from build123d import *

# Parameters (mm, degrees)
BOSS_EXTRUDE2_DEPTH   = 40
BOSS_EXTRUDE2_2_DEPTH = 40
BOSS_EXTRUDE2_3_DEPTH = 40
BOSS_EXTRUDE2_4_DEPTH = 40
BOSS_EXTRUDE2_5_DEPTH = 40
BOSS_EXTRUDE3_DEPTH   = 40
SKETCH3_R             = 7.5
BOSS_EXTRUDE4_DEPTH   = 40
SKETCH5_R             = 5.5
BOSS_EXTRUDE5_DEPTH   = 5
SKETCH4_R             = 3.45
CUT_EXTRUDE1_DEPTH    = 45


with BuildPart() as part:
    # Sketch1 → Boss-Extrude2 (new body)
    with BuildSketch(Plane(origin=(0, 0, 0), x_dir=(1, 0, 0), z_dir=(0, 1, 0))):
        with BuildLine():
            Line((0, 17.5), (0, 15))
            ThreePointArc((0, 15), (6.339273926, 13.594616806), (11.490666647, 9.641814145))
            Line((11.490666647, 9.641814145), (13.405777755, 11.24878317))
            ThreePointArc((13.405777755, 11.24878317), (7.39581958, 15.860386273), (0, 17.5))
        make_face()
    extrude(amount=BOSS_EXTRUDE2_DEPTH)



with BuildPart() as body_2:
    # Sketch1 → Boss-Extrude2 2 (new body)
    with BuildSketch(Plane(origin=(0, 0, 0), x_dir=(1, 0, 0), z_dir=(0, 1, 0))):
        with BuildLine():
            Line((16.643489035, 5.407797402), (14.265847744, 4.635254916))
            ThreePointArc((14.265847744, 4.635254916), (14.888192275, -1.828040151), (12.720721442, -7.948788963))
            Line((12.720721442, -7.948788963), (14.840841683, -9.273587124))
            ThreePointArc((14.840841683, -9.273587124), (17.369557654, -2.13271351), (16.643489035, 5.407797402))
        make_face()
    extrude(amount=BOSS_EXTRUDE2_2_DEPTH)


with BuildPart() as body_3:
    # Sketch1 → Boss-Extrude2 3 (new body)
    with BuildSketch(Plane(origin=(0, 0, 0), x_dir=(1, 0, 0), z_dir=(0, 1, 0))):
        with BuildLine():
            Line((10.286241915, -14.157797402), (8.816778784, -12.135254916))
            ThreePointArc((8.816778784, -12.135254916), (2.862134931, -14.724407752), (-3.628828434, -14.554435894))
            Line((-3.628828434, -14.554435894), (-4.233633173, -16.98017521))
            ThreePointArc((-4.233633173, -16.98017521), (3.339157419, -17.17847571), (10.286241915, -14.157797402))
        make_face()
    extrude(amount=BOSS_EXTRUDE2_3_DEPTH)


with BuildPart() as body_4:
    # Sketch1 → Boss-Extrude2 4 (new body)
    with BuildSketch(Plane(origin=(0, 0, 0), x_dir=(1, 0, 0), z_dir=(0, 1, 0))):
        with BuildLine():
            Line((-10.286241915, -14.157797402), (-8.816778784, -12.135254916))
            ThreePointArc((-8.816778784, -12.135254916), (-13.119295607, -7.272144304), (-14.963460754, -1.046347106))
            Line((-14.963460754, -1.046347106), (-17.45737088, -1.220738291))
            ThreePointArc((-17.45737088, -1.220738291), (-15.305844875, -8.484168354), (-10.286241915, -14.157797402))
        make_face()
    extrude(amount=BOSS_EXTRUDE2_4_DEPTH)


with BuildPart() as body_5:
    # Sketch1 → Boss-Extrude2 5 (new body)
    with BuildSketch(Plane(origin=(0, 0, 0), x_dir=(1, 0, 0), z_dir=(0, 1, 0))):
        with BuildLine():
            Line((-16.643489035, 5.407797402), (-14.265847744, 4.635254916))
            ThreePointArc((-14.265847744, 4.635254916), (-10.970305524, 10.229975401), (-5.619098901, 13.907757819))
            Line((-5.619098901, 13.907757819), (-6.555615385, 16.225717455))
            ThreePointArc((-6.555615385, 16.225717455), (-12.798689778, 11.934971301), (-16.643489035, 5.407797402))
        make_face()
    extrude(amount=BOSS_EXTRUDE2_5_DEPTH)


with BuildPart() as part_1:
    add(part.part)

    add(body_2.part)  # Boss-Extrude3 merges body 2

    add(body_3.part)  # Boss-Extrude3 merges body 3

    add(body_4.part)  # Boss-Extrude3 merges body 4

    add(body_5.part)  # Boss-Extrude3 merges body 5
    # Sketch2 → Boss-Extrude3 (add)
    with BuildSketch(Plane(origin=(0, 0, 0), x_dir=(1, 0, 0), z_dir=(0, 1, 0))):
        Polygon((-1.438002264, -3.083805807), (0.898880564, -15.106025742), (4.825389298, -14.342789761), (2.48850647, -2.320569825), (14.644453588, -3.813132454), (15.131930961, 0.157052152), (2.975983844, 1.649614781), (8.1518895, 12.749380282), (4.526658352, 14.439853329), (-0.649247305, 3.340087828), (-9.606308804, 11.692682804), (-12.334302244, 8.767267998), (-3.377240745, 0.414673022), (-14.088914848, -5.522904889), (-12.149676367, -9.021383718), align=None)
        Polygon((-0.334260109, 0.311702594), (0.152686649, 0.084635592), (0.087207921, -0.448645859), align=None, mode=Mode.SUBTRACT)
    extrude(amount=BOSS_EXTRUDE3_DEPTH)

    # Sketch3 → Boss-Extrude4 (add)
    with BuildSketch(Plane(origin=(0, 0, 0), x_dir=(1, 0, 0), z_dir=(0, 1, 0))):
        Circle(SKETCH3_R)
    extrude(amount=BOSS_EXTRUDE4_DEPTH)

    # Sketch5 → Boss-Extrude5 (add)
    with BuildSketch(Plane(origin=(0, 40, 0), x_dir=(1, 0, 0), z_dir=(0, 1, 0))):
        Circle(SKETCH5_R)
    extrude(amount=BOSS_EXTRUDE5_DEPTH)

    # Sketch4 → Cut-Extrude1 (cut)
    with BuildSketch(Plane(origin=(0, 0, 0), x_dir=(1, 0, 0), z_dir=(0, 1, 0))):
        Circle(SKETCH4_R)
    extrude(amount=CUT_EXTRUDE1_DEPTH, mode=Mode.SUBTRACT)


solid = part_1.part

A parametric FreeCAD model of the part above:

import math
import FreeCAD as App
import Part
import Sketcher
from FreeCAD import Vector
Q = App.Units.Quantity

doc = App.newDocument("Part")
body = doc.addObject("PartDesign::Body", "Body")

# Sketch on XZ plane
sketch1 = body.newObject("Sketcher::SketchObject", "Sketch")
sketch1.AttachmentSupport = (doc.getObject("XZ_Plane"), [""])
sketch1.MapMode = "FlatFace"
sketch1.addGeometry(Part.LineSegment(Vector(0, -17.5, 0), Vector(0, -15, 0)), False)
sketch1.addGeometry(Part.ArcOfCircle(Part.Circle(Vector(0, 0, 0), Vector(0, 0, 1), 15), math.radians(-90), math.radians(-40)), False)
sketch1.addGeometry(Part.LineSegment(Vector(11.5, -9.6, 0), Vector(13.4, -11.2, 0)), False)
sketch1.addGeometry(Part.ArcOfCircle(Part.Circle(Vector(0, 0, 0), Vector(0, 0, 1), 17.5), math.radians(-90), math.radians(-40)), False)
sketch1.addConstraint(Sketcher.Constraint("Coincident", 0, 2, 1, 1))
sketch1.addConstraint(Sketcher.Constraint("Coincident", 1, 2, 2, 1))
sketch1.addConstraint(Sketcher.Constraint("Coincident", 2, 2, 3, 2))
sketch1.addConstraint(Sketcher.Constraint("Coincident", 3, 1, 0, 1))
sketch1.addConstraint(Sketcher.Constraint("Vertical", 0))
sketch1.addConstraint(Sketcher.Constraint("Coincident", 1, 3, -1, 1))
sketch1.addConstraint(Sketcher.Constraint("Coincident", 3, 3, -1, 1))
sketch1.addConstraint(Sketcher.Constraint("PointOnObject", 0, 2, -2))
sketch1.addConstraint(Sketcher.Constraint("Radius", 1, 15.0))
sketch1.addConstraint(Sketcher.Constraint("Radius", 3, 17.5))
sketch1.addConstraint(Sketcher.Constraint("Angle", 2, Q("-40 deg")))
sketch1.addConstraint(Sketcher.Constraint("DistanceX", -1, 1, 1, 2, 11.490667))
pad1 = body.newObject("PartDesign::Pad", "Pad")
pad1.Profile = sketch1
pad1.Length = 40
pad1.Reversed = True
body2 = doc.addObject("PartDesign::Body", "Body001")

# Sketch on XZ plane
sketch2 = body2.newObject("Sketcher::SketchObject", "Sketch001")
sketch2.AttachmentSupport = (doc.getObject("XZ_Plane001"), [""])
sketch2.MapMode = "FlatFace"
sketch2.addGeometry(Part.LineSegment(Vector(16.6, -5.4, 0), Vector(14.3, -4.6, 0)), False)
sketch2.addGeometry(Part.ArcOfCircle(Part.Circle(Vector(0, 0, 0), Vector(0, 0, 1), 15), math.radians(-18), math.radians(32)), False)
sketch2.addGeometry(Part.LineSegment(Vector(12.7, 7.9, 0), Vector(14.8, 9.3, 0)), False)
sketch2.addGeometry(Part.ArcOfCircle(Part.Circle(Vector(0, 0, 0), Vector(0, 0, 1), 17.5), math.radians(-18), math.radians(32)), False)
sketch2.addConstraint(Sketcher.Constraint("Coincident", 0, 2, 1, 1))
sketch2.addConstraint(Sketcher.Constraint("Coincident", 1, 2, 2, 1))
sketch2.addConstraint(Sketcher.Constraint("Coincident", 2, 2, 3, 2))
sketch2.addConstraint(Sketcher.Constraint("Coincident", 3, 1, 0, 1))
sketch2.addConstraint(Sketcher.Constraint("Coincident", 1, 3, -1, 1))
sketch2.addConstraint(Sketcher.Constraint("Coincident", 3, 3, -1, 1))
sketch2.addConstraint(Sketcher.Constraint("Radius", 1, 15.0))
sketch2.addConstraint(Sketcher.Constraint("Radius", 3, 17.5))
sketch2.addConstraint(Sketcher.Constraint("Angle", 0, Q("162 deg")))
sketch2.addConstraint(Sketcher.Constraint("Angle", 2, Q("32 deg")))
sketch2.addConstraint(Sketcher.Constraint("DistanceX", -1, 1, 1, 2, 12.720721))
sketch2.addConstraint(Sketcher.Constraint("DistanceX", -1, 1, 3, 1, 16.643489))
pad2 = body2.newObject("PartDesign::Pad", "Pad001")
pad2.Profile = sketch2
pad2.Length = 40
pad2.Reversed = True
body3 = doc.addObject("PartDesign::Body", "Body002")

# Sketch on XZ plane
sketch3 = body3.newObject("Sketcher::SketchObject", "Sketch002")
sketch3.AttachmentSupport = (doc.getObject("XZ_Plane002"), [""])
sketch3.MapMode = "FlatFace"
sketch3.addGeometry(Part.LineSegment(Vector(10.3, 14.2, 0), Vector(8.8, 12.1, 0)), False)
sketch3.addGeometry(Part.ArcOfCircle(Part.Circle(Vector(0, 0, 0), Vector(0, 0, 1), 15), math.radians(54), math.radians(104)), False)
sketch3.addGeometry(Part.LineSegment(Vector(-3.6, 14.6, 0), Vector(-4.2, 17, 0)), False)
sketch3.addGeometry(Part.ArcOfCircle(Part.Circle(Vector(0, 0, 0), Vector(0, 0, 1), 17.5), math.radians(54), math.radians(104)), False)
sketch3.addConstraint(Sketcher.Constraint("Coincident", 0, 2, 1, 1))
sketch3.addConstraint(Sketcher.Constraint("Coincident", 1, 2, 2, 1))
sketch3.addConstraint(Sketcher.Constraint("Coincident", 2, 2, 3, 2))
sketch3.addConstraint(Sketcher.Constraint("Coincident", 3, 1, 0, 1))
sketch3.addConstraint(Sketcher.Constraint("Coincident", 1, 3, -1, 1))
sketch3.addConstraint(Sketcher.Constraint("Coincident", 3, 3, -1, 1))
sketch3.addConstraint(Sketcher.Constraint("Radius", 1, 15.0))
sketch3.addConstraint(Sketcher.Constraint("Radius", 3, 17.5))
sketch3.addConstraint(Sketcher.Constraint("Angle", 0, Q("-126 deg")))
sketch3.addConstraint(Sketcher.Constraint("Angle", 2, Q("104 deg")))
sketch3.addConstraint(Sketcher.Constraint("DistanceX", -1, 1, 0, 2, 8.816779))
sketch3.addConstraint(Sketcher.Constraint("DistanceX", 1, 2, -1, 1, 3.628828))
pad3 = body3.newObject("PartDesign::Pad", "Pad002")
pad3.Profile = sketch3
pad3.Length = 40
pad3.Reversed = True
body4 = doc.addObject("PartDesign::Body", "Body003")

# Sketch on XZ plane
sketch4 = body4.newObject("Sketcher::SketchObject", "Sketch003")
sketch4.AttachmentSupport = (doc.getObject("XZ_Plane003"), [""])
sketch4.MapMode = "FlatFace"
sketch4.addGeometry(Part.LineSegment(Vector(-10.3, 14.2, 0), Vector(-8.8, 12.1, 0)), False)
sketch4.addGeometry(Part.ArcOfCircle(Part.Circle(Vector(0, 0, 0), Vector(0, 0, 1), 15), math.radians(126), math.radians(176)), False)
sketch4.addGeometry(Part.LineSegment(Vector(-15, 1, 0), Vector(-17.5, 1.2, 0)), False)
sketch4.addGeometry(Part.ArcOfCircle(Part.Circle(Vector(0, 0, 0), Vector(0, 0, 1), 17.5), math.radians(126), math.radians(176)), False)
sketch4.addConstraint(Sketcher.Constraint("Coincident", 0, 2, 1, 1))
sketch4.addConstraint(Sketcher.Constraint("Coincident", 1, 2, 2, 1))
sketch4.addConstraint(Sketcher.Constraint("Coincident", 2, 2, 3, 2))
sketch4.addConstraint(Sketcher.Constraint("Coincident", 3, 1, 0, 1))
sketch4.addConstraint(Sketcher.Constraint("Coincident", 1, 3, -1, 1))
sketch4.addConstraint(Sketcher.Constraint("Coincident", 3, 3, -1, 1))
sketch4.addConstraint(Sketcher.Constraint("Radius", 1, 15.0))
sketch4.addConstraint(Sketcher.Constraint("Radius", 3, 17.5))
sketch4.addConstraint(Sketcher.Constraint("Angle", 0, Q("-54 deg")))
sketch4.addConstraint(Sketcher.Constraint("Angle", 2, Q("176 deg")))
sketch4.addConstraint(Sketcher.Constraint("DistanceX", 0, 2, -1, 1, 8.816779))
sketch4.addConstraint(Sketcher.Constraint("DistanceX", 1, 2, -1, 1, 14.963461))
pad4 = body4.newObject("PartDesign::Pad", "Pad003")
pad4.Profile = sketch4
pad4.Length = 40
pad4.Reversed = True
body5 = doc.addObject("PartDesign::Body", "Body004")

# Sketch on XZ plane
sketch5 = body5.newObject("Sketcher::SketchObject", "Sketch004")
sketch5.AttachmentSupport = (doc.getObject("XZ_Plane004"), [""])
sketch5.MapMode = "FlatFace"
sketch5.addGeometry(Part.LineSegment(Vector(-16.6, -5.4, 0), Vector(-14.3, -4.6, 0)), False)
sketch5.addGeometry(Part.ArcOfCircle(Part.Circle(Vector(0, 0, 0), Vector(0, 0, 1), 15), math.radians(-162), math.radians(-112)), False)
sketch5.addGeometry(Part.LineSegment(Vector(-5.6, -13.9, 0), Vector(-6.6, -16.2, 0)), False)
sketch5.addGeometry(Part.ArcOfCircle(Part.Circle(Vector(0, 0, 0), Vector(0, 0, 1), 17.5), math.radians(-162), math.radians(-112)), False)
sketch5.addConstraint(Sketcher.Constraint("Coincident", 0, 2, 1, 1))
sketch5.addConstraint(Sketcher.Constraint("Coincident", 1, 2, 2, 1))
sketch5.addConstraint(Sketcher.Constraint("Coincident", 2, 2, 3, 2))
sketch5.addConstraint(Sketcher.Constraint("Coincident", 3, 1, 0, 1))
sketch5.addConstraint(Sketcher.Constraint("Coincident", 1, 3, -1, 1))
sketch5.addConstraint(Sketcher.Constraint("Coincident", 3, 3, -1, 1))
sketch5.addConstraint(Sketcher.Constraint("Radius", 1, 15.0))
sketch5.addConstraint(Sketcher.Constraint("Radius", 3, 17.5))
sketch5.addConstraint(Sketcher.Constraint("Angle", 0, Q("18 deg")))
sketch5.addConstraint(Sketcher.Constraint("Angle", 2, Q("-112 deg")))
sketch5.addConstraint(Sketcher.Constraint("DistanceX", 1, 2, -1, 1, 5.619099))
sketch5.addConstraint(Sketcher.Constraint("DistanceX", 3, 1, -1, 1, 16.643489))
pad5 = body5.newObject("PartDesign::Pad", "Pad004")
pad5.Profile = sketch5
pad5.Length = 40
pad5.Reversed = True
body.AllowCompound = True
doc.recompute()

boolean = body.newObject("PartDesign::Boolean", "Boolean")
boolean.Type = "Fuse"
boolean.addObjects([body2])
doc.recompute()

boolean2 = body.newObject("PartDesign::Boolean", "Boolean001")
boolean2.Type = "Fuse"
boolean2.addObjects([body3])
doc.recompute()

boolean3 = body.newObject("PartDesign::Boolean", "Boolean002")
boolean3.Type = "Fuse"
boolean3.addObjects([body4])
doc.recompute()

boolean4 = body.newObject("PartDesign::Boolean", "Boolean003")
boolean4.Type = "Fuse"
boolean4.addObjects([body5])

# Sketch on XZ plane
sketch6 = body.newObject("Sketcher::SketchObject", "Sketch005")
sketch6.AttachmentSupport = (doc.getObject("XZ_Plane"), [""])
sketch6.MapMode = "FlatFace"
sketch6.addGeometry(Part.LineSegment(Vector(-1.4, 3.1, 0), Vector(0.9, 15.1, 0)), False)
sketch6.addGeometry(Part.LineSegment(Vector(0.9, 15.1, 0), Vector(4.8, 14.3, 0)), False)
sketch6.addGeometry(Part.LineSegment(Vector(4.8, 14.3, 0), Vector(2.5, 2.3, 0)), False)
sketch6.addGeometry(Part.LineSegment(Vector(2.5, 2.3, 0), Vector(14.6, 3.8, 0)), False)
sketch6.addGeometry(Part.LineSegment(Vector(14.6, 3.8, 0), Vector(15.1, -0.2, 0)), False)
sketch6.addGeometry(Part.LineSegment(Vector(15.1, -0.2, 0), Vector(3, -1.6, 0)), False)
sketch6.addGeometry(Part.LineSegment(Vector(3, -1.6, 0), Vector(8.2, -12.7, 0)), False)
sketch6.addGeometry(Part.LineSegment(Vector(8.2, -12.7, 0), Vector(4.5, -14.4, 0)), False)
sketch6.addGeometry(Part.LineSegment(Vector(4.5, -14.4, 0), Vector(-0.6, -3.3, 0)), False)
sketch6.addGeometry(Part.LineSegment(Vector(-0.6, -3.3, 0), Vector(-9.6, -11.7, 0)), False)
sketch6.addGeometry(Part.LineSegment(Vector(-9.6, -11.7, 0), Vector(-12.3, -8.8, 0)), False)
sketch6.addGeometry(Part.LineSegment(Vector(-12.3, -8.8, 0), Vector(-3.4, -0.4, 0)), False)
sketch6.addGeometry(Part.LineSegment(Vector(-3.4, -0.4, 0), Vector(-14.1, 5.5, 0)), False)
sketch6.addGeometry(Part.LineSegment(Vector(-14.1, 5.5, 0), Vector(-12.1, 9, 0)), False)
sketch6.addGeometry(Part.LineSegment(Vector(-12.1, 9, 0), Vector(-1.4, 3.1, 0)), False)
sketch6.addGeometry(Part.LineSegment(Vector(0.1, 0.4, 0), Vector(-0.3, -0.3, 0)), False)
sketch6.addGeometry(Part.LineSegment(Vector(-0.3, -0.3, 0), Vector(0.2, -0.1, 0)), False)
sketch6.addGeometry(Part.LineSegment(Vector(0.2, -0.1, 0), Vector(0.1, 0.4, 0)), False)
sketch6.addConstraint(Sketcher.Constraint("Coincident", 0, 2, 1, 1))
sketch6.addConstraint(Sketcher.Constraint("Coincident", 1, 2, 2, 1))
sketch6.addConstraint(Sketcher.Constraint("Coincident", 2, 2, 3, 1))
sketch6.addConstraint(Sketcher.Constraint("Coincident", 3, 2, 4, 1))
sketch6.addConstraint(Sketcher.Constraint("Coincident", 4, 2, 5, 1))
sketch6.addConstraint(Sketcher.Constraint("Coincident", 5, 2, 6, 1))
sketch6.addConstraint(Sketcher.Constraint("Coincident", 6, 2, 7, 1))
sketch6.addConstraint(Sketcher.Constraint("Coincident", 7, 2, 8, 1))
sketch6.addConstraint(Sketcher.Constraint("Coincident", 8, 2, 9, 1))
sketch6.addConstraint(Sketcher.Constraint("Coincident", 9, 2, 10, 1))
sketch6.addConstraint(Sketcher.Constraint("Coincident", 10, 2, 11, 1))
sketch6.addConstraint(Sketcher.Constraint("Coincident", 11, 2, 12, 1))
sketch6.addConstraint(Sketcher.Constraint("Coincident", 12, 2, 13, 1))
sketch6.addConstraint(Sketcher.Constraint("Coincident", 13, 2, 14, 1))
sketch6.addConstraint(Sketcher.Constraint("Coincident", 14, 2, 0, 1))
sketch6.addConstraint(Sketcher.Constraint("Coincident", 15, 2, 16, 1))
sketch6.addConstraint(Sketcher.Constraint("Coincident", 16, 2, 17, 1))
sketch6.addConstraint(Sketcher.Constraint("Coincident", 17, 2, 15, 1))
sketch6.addConstraint(Sketcher.Constraint("Perpendicular", 0, 1))
sketch6.addConstraint(Sketcher.Constraint("Perpendicular", 1, 2))
sketch6.addConstraint(Sketcher.Constraint("Perpendicular", 3, 4))
sketch6.addConstraint(Sketcher.Constraint("Perpendicular", 4, 5))
sketch6.addConstraint(Sketcher.Constraint("Perpendicular", 6, 7))
sketch6.addConstraint(Sketcher.Constraint("Perpendicular", 7, 8))
sketch6.addConstraint(Sketcher.Constraint("Perpendicular", 9, 10))
sketch6.addConstraint(Sketcher.Constraint("Perpendicular", 10, 11))
sketch6.addConstraint(Sketcher.Constraint("Perpendicular", 12, 13))
sketch6.addConstraint(Sketcher.Constraint("Perpendicular", 13, 14))
sketch6.addConstraint(Sketcher.Constraint("Perpendicular", 14, 15))
sketch6.addConstraint(Sketcher.Constraint("Perpendicular", 8, 16))
sketch6.addConstraint(Sketcher.Constraint("Perpendicular", 5, 17))
sketch6.addConstraint(Sketcher.Constraint("Equal", 0, 2))
sketch6.addConstraint(Sketcher.Constraint("Equal", 2, 3))
sketch6.addConstraint(Sketcher.Constraint("Equal", 1, 4))
sketch6.addConstraint(Sketcher.Constraint("Equal", 3, 5))
sketch6.addConstraint(Sketcher.Constraint("Equal", 5, 6))
sketch6.addConstraint(Sketcher.Constraint("Equal", 4, 7))
sketch6.addConstraint(Sketcher.Constraint("Equal", 6, 8))
sketch6.addConstraint(Sketcher.Constraint("Equal", 8, 9))
sketch6.addConstraint(Sketcher.Constraint("Equal", 7, 10))
sketch6.addConstraint(Sketcher.Constraint("Equal", 9, 11))
sketch6.addConstraint(Sketcher.Constraint("Equal", 11, 12))
sketch6.addConstraint(Sketcher.Constraint("Equal", 10, 13))
sketch6.addConstraint(Sketcher.Constraint("Equal", 12, 14))
sketch6.addConstraint(Sketcher.Constraint("Equal", 16, 17))
sketch6.addConstraint(Sketcher.Constraint("Angle", 0, Q("79 deg")))
sketch6.addConstraint(Sketcher.Constraint("Angle", 3, Q("7 deg")))
sketch6.addConstraint(Sketcher.Constraint("Distance", 1, 4.0))
sketch6.addConstraint(Sketcher.Constraint("DistanceX", 1, 2, 6, 2, 3.3265))
sketch6.addConstraint(Sketcher.Constraint("DistanceX", 17, 2, 2, 2, 2.401299))
sketch6.addConstraint(Sketcher.Constraint("DistanceX", -1, 1, 0, 2, 0.898881))
sketch6.addConstraint(Sketcher.Constraint("DistanceY", -1, 1, 1, 2, 14.34279))
sketch6.addConstraint(Sketcher.Constraint("DistanceX", 15, 2, -1, 1, 0.33426))
sketch6.addConstraint(Sketcher.Constraint("DistanceY", 11, 2, 15, 2, 0.10297))
pad6 = body.newObject("PartDesign::Pad", "Pad005")
pad6.Profile = sketch6
pad6.Length = 40
pad6.Reversed = True

# Sketch on XZ plane
sketch7 = body.newObject("Sketcher::SketchObject", "Sketch006")
sketch7.AttachmentSupport = (doc.getObject("XZ_Plane"), [""])
sketch7.MapMode = "FlatFace"
sketch7.addGeometry(Part.Circle(Vector(0, 0, 0), Vector(0, 0, 1), 8), False)
sketch7.addConstraint(Sketcher.Constraint("Coincident", 0, 3, -1, 1))
sketch7.addConstraint(Sketcher.Constraint("Diameter", 0, 15.0))
pad7 = body.newObject("PartDesign::Pad", "Pad006")
pad7.Profile = sketch7
pad7.Length = 40
pad7.Reversed = True

# Sketch on XZ plane
sketch8 = body.newObject("Sketcher::SketchObject", "Sketch007")
sketch8.AttachmentSupport = (doc.getObject("XZ_Plane"), [""])
sketch8.MapMode = "FlatFace"
sketch8.AttachmentOffset = App.Placement(Vector(0, 0, -40), App.Rotation())
sketch8.addGeometry(Part.Circle(Vector(0, 0, 0), Vector(0, 0, 1), 6), False)
sketch8.addConstraint(Sketcher.Constraint("Coincident", 0, 3, -1, 1))
sketch8.addConstraint(Sketcher.Constraint("Diameter", 0, 11.0))
pad8 = body.newObject("PartDesign::Pad", "Pad007")
pad8.Profile = sketch8
pad8.Length = 5
pad8.Reversed = True

# Sketch on XZ plane
sketch9 = body.newObject("Sketcher::SketchObject", "Sketch008")
sketch9.AttachmentSupport = (doc.getObject("XZ_Plane"), [""])
sketch9.MapMode = "FlatFace"
sketch9.addGeometry(Part.Circle(Vector(0, 0, 0), Vector(0, 0, 1), 3.5), False)
sketch9.addConstraint(Sketcher.Constraint("Coincident", 0, 3, -1, 1))
sketch9.addConstraint(Sketcher.Constraint("Diameter", 0, 6.9))
pocket1 = body.newObject("PartDesign::Pocket", "Pocket")
pocket1.Profile = sketch9
pocket1.Length = 45

doc.recompute()
